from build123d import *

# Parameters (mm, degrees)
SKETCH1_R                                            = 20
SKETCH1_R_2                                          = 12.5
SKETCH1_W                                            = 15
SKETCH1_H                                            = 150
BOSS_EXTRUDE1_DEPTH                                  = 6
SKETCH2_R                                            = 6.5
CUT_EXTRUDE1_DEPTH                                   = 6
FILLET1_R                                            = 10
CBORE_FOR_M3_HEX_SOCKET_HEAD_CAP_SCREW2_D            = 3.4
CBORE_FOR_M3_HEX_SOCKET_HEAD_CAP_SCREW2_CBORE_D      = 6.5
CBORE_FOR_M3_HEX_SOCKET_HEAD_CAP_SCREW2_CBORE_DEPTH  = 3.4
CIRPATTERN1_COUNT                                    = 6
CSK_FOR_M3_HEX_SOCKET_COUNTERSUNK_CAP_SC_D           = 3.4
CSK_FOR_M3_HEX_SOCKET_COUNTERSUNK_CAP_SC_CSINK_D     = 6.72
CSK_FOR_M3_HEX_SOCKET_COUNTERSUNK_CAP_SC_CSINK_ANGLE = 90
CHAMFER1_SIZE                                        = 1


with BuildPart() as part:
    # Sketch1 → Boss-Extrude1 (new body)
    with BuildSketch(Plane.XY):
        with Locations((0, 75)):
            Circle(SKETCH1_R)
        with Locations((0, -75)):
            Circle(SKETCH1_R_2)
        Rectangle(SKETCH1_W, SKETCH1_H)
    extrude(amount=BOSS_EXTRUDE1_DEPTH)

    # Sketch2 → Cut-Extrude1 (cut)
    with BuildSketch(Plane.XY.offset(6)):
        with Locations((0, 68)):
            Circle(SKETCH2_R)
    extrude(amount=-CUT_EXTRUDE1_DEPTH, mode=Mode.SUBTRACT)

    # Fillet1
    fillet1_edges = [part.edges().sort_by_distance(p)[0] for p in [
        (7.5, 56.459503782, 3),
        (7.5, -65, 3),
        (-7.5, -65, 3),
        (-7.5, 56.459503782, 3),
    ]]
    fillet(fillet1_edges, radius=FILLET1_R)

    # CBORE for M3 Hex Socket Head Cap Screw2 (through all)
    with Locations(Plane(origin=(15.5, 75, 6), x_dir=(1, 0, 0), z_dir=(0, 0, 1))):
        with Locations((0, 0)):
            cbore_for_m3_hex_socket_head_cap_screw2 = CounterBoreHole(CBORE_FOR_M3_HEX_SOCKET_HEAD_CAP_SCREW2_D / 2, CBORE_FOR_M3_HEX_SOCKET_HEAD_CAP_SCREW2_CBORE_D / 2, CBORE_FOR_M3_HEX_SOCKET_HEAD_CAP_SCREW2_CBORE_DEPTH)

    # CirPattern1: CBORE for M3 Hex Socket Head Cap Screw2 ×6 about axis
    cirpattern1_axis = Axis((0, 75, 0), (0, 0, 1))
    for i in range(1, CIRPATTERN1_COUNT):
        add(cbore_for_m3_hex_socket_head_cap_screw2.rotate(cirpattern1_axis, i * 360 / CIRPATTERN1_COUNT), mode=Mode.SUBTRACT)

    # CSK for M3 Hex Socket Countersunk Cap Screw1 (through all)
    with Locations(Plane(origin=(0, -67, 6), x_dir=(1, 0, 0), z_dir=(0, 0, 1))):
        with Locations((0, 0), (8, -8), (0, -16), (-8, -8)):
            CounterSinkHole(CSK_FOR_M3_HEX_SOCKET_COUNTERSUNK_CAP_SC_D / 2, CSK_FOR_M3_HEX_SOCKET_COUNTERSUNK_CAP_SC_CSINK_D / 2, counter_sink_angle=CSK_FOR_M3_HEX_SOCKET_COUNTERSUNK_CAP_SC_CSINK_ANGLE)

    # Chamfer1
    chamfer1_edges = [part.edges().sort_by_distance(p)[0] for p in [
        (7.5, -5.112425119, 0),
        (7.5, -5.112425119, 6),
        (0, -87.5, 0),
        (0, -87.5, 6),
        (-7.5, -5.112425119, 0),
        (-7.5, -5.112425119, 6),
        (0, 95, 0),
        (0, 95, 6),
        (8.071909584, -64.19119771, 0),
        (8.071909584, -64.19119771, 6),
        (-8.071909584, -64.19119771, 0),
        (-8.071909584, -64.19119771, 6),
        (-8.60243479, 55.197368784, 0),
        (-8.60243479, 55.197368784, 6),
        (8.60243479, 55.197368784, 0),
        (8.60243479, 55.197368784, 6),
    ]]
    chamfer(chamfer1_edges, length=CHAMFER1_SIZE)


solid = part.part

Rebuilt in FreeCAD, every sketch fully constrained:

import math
import FreeCAD as App
import Part
import Sketcher

V = App.Vector


def edges_at(feature, points):
    """Names of the edges that pass closest to the given points."""
    edges = feature.Shape.Edges
    near = lambda p: min(range(len(edges)), key=lambda i: edges[i].distToShape(Part.Vertex(*p))[0])
    return sorted({f"Edge{near(p) + 1}" for p in points})

doc = App.newDocument("Part")
body = doc.addObject("PartDesign::Body", "Body")

# Sketch on XY plane
sketch1 = doc.addObject("Sketcher::SketchObject", "Sketch")
body.addObject(sketch1)
sketch1.AttachmentSupport = (doc.XY_Plane, [""])
sketch1.MapMode = "FlatFace"
sketch1.addGeometry(Part.ArcOfCircle(Part.Circle(V(0, 75, 0), V(0, 0, 1), 20), math.radians(-67.975687), math.radians(247.975687)), False)
sketch1.addGeometry(Part.LineSegment(V(-7.5, 56.459504, 0), V(-7.5, -65, 0)), False)
sketch1.addGeometry(Part.ArcOfCircle(Part.Circle(V(0, -75, 0), V(0, 0, 1), 12.5), math.radians(126.869898), math.radians(413.130102)), False)
sketch1.addGeometry(Part.LineSegment(V(7.5, -65, 0), V(7.5, 56.459504, 0)), False)
sketch1.addConstraint(Sketcher.Constraint("Coincident", 0, 2, 1, 1))
sketch1.addConstraint(Sketcher.Constraint("Coincident", 1, 2, 2, 1))
sketch1.addConstraint(Sketcher.Constraint("Coincident", 2, 2, 3, 1))
sketch1.addConstraint(Sketcher.Constraint("Coincident", 3, 2, 0, 1))
sketch1.addConstraint(Sketcher.Constraint("Vertical", 1))
sketch1.addConstraint(Sketcher.Constraint("Vertical", 3))
sketch1.addConstraint(Sketcher.Constraint("Symmetric", 0, 3, 2, 3, -1, 1))
sketch1.addConstraint(Sketcher.Constraint("Symmetric", 1, 2, 2, 2, -2))
sketch1.addConstraint(Sketcher.Constraint("Radius", 0, 20.0))
sketch1.addConstraint(Sketcher.Constraint("Radius", 2, 12.5))
sketch1.addConstraint(Sketcher.Constraint("DistanceY", -1, 1, 0, 3, 75.0))
sketch1.addConstraint(Sketcher.Constraint("DistanceY", 1, 2, -1, 1, 65.0))
pad1 = doc.addObject("PartDesign::Pad", "Pad")
body.addObject(pad1)
pad1.Profile = sketch1
pad1.Length = 6

# Sketch on XY plane
sketch2 = doc.addObject("Sketcher::SketchObject", "Sketch001")
body.addObject(sketch2)
sketch2.AttachmentSupport = (doc.XY_Plane, [""])
sketch2.MapMode = "FlatFace"
sketch2.AttachmentOffset = App.Placement(V(0, 0, 6), App.Rotation())
sketch2.addGeometry(Part.Circle(V(0, 68, 0), V(0, 0, 1), 6.5), False)
sketch2.addConstraint(Sketcher.Constraint("PointOnObject", 0, 3, -2))
sketch2.addConstraint(Sketcher.Constraint("Diameter", 0, 13.0))
sketch2.addConstraint(Sketcher.Constraint("DistanceY", -1, 1, 0, 3, 68.0))
pocket1 = doc.addObject("PartDesign::Pocket", "Pocket")
body.addObject(pocket1)
pocket1.Profile = sketch2
pocket1.Length = 6
doc.recompute()

fillet = doc.addObject("PartDesign::Fillet", "Fillet")
body.addObject(fillet)
fillet.Base = (pocket1, edges_at(pocket1, [
    (7.5, 56.46, 3),
    (7.5, -65, 3),
    (-7.5, -65, 3),
    (-7.5, 56.46, 3),
]))
fillet.Radius = 10

# Sketch on XY plane
sketch3 = doc.addObject("Sketcher::SketchObject", "Sketch002")
body.addObject(sketch3)
sketch3.AttachmentSupport = (doc.XY_Plane, [""])
sketch3.MapMode = "FlatFace"
sketch3.AttachmentOffset = App.Placement(V(0, 0, 6), App.Rotation())
sketch3.addGeometry(Part.Circle(V(15.5, 75, 0), V(0, 0, 1), 1.7), False)
sketch3.addConstraint(Sketcher.Constraint("Diameter", 0, 3.4))
sketch3.addConstraint(Sketcher.Constraint("DistanceY", -1, 1, 0, 3, 75.0))
sketch3.addConstraint(Sketcher.Constraint("DistanceX", -1, 1, 0, 3, 15.5))
doc.recompute()
hole = doc.addObject("PartDesign::Hole", "Hole")
body.addObject(hole)
hole.Profile = sketch3
hole.ThreadType = "None"
hole.Diameter = 3.4
hole.DepthType = "ThroughAll"
hole.HoleCutType = "Counterbore"
hole.HoleCutDiameter = 6.5
hole.HoleCutDepth = 3.4
doc.recompute()

datumline = doc.addObject("PartDesign::Line", "DatumLine")
body.addObject(datumline)
datumline.Placement = App.Placement(V(0, 75, 0), App.Rotation(V(0, 0, 1), V(0, 0, 1)))
polarpattern = doc.addObject("PartDesign::PolarPattern", "PolarPattern")
body.addObject(polarpattern)
polarpattern.Originals = [hole]
polarpattern.Axis = (datumline, [""])
polarpattern.Angle = 360
polarpattern.Occurrences = 6
body.Tip = polarpattern

# Sketch on XY plane
sketch4 = doc.addObject("Sketcher::SketchObject", "Sketch003")
body.addObject(sketch4)
sketch4.AttachmentSupport = (doc.XY_Plane, [""])
sketch4.MapMode = "FlatFace"
sketch4.AttachmentOffset = App.Placement(V(0, 0, 6), App.Rotation())
sketch4.addGeometry(Part.Circle(V(0, -67, 0), V(0, 0, 1), 1.7), False)
sketch4.addGeometry(Part.Circle(V(8, -75, 0), V(0, 0, 1), 1.7), False)
sketch4.addGeometry(Part.Circle(V(0, -83, 0), V(0, 0, 1), 1.7), False)
sketch4.addGeometry(Part.Circle(V(-8, -75, 0), V(0, 0, 1), 1.7), False)
sketch4.addConstraint(Sketcher.Constraint("Equal", 0, 1))
sketch4.addConstraint(Sketcher.Constraint("Equal", 1, 2))
sketch4.addConstraint(Sketcher.Constraint("Equal", 2, 3))
sketch4.addConstraint(Sketcher.Constraint("Symmetric", 1, 3, 3, 3, -2))
sketch4.addConstraint(Sketcher.Constraint("PointOnObject", 0, 3, -2))
sketch4.addConstraint(Sketcher.Constraint("PointOnObject", 2, 3, -2))
sketch4.addConstraint(Sketcher.Constraint("Diameter", 0, 3.4))
sketch4.addConstraint(Sketcher.Constraint("DistanceY", 0, 3, -1, 1, 67.0))
sketch4.addConstraint(Sketcher.Constraint("DistanceX", -1, 1, 1, 3, 8.0))
sketch4.addConstraint(Sketcher.Constraint("DistanceY", 1, 3, -1, 1, 75.0))
sketch4.addConstraint(Sketcher.Constraint("DistanceY", 2, 3, -1, 1, 83.0))
doc.recompute()
hole2 = doc.addObject("PartDesign::Hole", "Hole001")
body.addObject(hole2)
hole2.Profile = sketch4
hole2.ThreadType = "None"
hole2.Diameter = 3.4
hole2.DepthType = "ThroughAll"
hole2.HoleCutType = "Countersink"
hole2.HoleCutDiameter = 6.72
hole2.HoleCutCountersinkAngle = 90
doc.recompute()

chamfer = doc.addObject("PartDesign::Chamfer", "Chamfer")
body.addObject(chamfer)
chamfer.Base = (hole2, edges_at(hole2, [
    (7.5, -5.112, 0),
    (7.5, -5.112, 6),
    (0, -87.5, 0),
    (0, -87.5, 6),
    (-7.5, -5.112, 0),
    (-7.5, -5.112, 6),
    (0, 95, 0),
    (0, 95, 6),
    (8.072, -64.191, 0),
    (8.072, -64.191, 6),
    (-8.072, -64.191, 0),
    (-8.072, -64.191, 6),
    (-8.602, 55.197, 0),
    (-8.602, 55.197, 6),
    (8.602, 55.197, 0),
    (8.602, 55.197, 6),
]))
chamfer.Size = 1

doc.recompute()
